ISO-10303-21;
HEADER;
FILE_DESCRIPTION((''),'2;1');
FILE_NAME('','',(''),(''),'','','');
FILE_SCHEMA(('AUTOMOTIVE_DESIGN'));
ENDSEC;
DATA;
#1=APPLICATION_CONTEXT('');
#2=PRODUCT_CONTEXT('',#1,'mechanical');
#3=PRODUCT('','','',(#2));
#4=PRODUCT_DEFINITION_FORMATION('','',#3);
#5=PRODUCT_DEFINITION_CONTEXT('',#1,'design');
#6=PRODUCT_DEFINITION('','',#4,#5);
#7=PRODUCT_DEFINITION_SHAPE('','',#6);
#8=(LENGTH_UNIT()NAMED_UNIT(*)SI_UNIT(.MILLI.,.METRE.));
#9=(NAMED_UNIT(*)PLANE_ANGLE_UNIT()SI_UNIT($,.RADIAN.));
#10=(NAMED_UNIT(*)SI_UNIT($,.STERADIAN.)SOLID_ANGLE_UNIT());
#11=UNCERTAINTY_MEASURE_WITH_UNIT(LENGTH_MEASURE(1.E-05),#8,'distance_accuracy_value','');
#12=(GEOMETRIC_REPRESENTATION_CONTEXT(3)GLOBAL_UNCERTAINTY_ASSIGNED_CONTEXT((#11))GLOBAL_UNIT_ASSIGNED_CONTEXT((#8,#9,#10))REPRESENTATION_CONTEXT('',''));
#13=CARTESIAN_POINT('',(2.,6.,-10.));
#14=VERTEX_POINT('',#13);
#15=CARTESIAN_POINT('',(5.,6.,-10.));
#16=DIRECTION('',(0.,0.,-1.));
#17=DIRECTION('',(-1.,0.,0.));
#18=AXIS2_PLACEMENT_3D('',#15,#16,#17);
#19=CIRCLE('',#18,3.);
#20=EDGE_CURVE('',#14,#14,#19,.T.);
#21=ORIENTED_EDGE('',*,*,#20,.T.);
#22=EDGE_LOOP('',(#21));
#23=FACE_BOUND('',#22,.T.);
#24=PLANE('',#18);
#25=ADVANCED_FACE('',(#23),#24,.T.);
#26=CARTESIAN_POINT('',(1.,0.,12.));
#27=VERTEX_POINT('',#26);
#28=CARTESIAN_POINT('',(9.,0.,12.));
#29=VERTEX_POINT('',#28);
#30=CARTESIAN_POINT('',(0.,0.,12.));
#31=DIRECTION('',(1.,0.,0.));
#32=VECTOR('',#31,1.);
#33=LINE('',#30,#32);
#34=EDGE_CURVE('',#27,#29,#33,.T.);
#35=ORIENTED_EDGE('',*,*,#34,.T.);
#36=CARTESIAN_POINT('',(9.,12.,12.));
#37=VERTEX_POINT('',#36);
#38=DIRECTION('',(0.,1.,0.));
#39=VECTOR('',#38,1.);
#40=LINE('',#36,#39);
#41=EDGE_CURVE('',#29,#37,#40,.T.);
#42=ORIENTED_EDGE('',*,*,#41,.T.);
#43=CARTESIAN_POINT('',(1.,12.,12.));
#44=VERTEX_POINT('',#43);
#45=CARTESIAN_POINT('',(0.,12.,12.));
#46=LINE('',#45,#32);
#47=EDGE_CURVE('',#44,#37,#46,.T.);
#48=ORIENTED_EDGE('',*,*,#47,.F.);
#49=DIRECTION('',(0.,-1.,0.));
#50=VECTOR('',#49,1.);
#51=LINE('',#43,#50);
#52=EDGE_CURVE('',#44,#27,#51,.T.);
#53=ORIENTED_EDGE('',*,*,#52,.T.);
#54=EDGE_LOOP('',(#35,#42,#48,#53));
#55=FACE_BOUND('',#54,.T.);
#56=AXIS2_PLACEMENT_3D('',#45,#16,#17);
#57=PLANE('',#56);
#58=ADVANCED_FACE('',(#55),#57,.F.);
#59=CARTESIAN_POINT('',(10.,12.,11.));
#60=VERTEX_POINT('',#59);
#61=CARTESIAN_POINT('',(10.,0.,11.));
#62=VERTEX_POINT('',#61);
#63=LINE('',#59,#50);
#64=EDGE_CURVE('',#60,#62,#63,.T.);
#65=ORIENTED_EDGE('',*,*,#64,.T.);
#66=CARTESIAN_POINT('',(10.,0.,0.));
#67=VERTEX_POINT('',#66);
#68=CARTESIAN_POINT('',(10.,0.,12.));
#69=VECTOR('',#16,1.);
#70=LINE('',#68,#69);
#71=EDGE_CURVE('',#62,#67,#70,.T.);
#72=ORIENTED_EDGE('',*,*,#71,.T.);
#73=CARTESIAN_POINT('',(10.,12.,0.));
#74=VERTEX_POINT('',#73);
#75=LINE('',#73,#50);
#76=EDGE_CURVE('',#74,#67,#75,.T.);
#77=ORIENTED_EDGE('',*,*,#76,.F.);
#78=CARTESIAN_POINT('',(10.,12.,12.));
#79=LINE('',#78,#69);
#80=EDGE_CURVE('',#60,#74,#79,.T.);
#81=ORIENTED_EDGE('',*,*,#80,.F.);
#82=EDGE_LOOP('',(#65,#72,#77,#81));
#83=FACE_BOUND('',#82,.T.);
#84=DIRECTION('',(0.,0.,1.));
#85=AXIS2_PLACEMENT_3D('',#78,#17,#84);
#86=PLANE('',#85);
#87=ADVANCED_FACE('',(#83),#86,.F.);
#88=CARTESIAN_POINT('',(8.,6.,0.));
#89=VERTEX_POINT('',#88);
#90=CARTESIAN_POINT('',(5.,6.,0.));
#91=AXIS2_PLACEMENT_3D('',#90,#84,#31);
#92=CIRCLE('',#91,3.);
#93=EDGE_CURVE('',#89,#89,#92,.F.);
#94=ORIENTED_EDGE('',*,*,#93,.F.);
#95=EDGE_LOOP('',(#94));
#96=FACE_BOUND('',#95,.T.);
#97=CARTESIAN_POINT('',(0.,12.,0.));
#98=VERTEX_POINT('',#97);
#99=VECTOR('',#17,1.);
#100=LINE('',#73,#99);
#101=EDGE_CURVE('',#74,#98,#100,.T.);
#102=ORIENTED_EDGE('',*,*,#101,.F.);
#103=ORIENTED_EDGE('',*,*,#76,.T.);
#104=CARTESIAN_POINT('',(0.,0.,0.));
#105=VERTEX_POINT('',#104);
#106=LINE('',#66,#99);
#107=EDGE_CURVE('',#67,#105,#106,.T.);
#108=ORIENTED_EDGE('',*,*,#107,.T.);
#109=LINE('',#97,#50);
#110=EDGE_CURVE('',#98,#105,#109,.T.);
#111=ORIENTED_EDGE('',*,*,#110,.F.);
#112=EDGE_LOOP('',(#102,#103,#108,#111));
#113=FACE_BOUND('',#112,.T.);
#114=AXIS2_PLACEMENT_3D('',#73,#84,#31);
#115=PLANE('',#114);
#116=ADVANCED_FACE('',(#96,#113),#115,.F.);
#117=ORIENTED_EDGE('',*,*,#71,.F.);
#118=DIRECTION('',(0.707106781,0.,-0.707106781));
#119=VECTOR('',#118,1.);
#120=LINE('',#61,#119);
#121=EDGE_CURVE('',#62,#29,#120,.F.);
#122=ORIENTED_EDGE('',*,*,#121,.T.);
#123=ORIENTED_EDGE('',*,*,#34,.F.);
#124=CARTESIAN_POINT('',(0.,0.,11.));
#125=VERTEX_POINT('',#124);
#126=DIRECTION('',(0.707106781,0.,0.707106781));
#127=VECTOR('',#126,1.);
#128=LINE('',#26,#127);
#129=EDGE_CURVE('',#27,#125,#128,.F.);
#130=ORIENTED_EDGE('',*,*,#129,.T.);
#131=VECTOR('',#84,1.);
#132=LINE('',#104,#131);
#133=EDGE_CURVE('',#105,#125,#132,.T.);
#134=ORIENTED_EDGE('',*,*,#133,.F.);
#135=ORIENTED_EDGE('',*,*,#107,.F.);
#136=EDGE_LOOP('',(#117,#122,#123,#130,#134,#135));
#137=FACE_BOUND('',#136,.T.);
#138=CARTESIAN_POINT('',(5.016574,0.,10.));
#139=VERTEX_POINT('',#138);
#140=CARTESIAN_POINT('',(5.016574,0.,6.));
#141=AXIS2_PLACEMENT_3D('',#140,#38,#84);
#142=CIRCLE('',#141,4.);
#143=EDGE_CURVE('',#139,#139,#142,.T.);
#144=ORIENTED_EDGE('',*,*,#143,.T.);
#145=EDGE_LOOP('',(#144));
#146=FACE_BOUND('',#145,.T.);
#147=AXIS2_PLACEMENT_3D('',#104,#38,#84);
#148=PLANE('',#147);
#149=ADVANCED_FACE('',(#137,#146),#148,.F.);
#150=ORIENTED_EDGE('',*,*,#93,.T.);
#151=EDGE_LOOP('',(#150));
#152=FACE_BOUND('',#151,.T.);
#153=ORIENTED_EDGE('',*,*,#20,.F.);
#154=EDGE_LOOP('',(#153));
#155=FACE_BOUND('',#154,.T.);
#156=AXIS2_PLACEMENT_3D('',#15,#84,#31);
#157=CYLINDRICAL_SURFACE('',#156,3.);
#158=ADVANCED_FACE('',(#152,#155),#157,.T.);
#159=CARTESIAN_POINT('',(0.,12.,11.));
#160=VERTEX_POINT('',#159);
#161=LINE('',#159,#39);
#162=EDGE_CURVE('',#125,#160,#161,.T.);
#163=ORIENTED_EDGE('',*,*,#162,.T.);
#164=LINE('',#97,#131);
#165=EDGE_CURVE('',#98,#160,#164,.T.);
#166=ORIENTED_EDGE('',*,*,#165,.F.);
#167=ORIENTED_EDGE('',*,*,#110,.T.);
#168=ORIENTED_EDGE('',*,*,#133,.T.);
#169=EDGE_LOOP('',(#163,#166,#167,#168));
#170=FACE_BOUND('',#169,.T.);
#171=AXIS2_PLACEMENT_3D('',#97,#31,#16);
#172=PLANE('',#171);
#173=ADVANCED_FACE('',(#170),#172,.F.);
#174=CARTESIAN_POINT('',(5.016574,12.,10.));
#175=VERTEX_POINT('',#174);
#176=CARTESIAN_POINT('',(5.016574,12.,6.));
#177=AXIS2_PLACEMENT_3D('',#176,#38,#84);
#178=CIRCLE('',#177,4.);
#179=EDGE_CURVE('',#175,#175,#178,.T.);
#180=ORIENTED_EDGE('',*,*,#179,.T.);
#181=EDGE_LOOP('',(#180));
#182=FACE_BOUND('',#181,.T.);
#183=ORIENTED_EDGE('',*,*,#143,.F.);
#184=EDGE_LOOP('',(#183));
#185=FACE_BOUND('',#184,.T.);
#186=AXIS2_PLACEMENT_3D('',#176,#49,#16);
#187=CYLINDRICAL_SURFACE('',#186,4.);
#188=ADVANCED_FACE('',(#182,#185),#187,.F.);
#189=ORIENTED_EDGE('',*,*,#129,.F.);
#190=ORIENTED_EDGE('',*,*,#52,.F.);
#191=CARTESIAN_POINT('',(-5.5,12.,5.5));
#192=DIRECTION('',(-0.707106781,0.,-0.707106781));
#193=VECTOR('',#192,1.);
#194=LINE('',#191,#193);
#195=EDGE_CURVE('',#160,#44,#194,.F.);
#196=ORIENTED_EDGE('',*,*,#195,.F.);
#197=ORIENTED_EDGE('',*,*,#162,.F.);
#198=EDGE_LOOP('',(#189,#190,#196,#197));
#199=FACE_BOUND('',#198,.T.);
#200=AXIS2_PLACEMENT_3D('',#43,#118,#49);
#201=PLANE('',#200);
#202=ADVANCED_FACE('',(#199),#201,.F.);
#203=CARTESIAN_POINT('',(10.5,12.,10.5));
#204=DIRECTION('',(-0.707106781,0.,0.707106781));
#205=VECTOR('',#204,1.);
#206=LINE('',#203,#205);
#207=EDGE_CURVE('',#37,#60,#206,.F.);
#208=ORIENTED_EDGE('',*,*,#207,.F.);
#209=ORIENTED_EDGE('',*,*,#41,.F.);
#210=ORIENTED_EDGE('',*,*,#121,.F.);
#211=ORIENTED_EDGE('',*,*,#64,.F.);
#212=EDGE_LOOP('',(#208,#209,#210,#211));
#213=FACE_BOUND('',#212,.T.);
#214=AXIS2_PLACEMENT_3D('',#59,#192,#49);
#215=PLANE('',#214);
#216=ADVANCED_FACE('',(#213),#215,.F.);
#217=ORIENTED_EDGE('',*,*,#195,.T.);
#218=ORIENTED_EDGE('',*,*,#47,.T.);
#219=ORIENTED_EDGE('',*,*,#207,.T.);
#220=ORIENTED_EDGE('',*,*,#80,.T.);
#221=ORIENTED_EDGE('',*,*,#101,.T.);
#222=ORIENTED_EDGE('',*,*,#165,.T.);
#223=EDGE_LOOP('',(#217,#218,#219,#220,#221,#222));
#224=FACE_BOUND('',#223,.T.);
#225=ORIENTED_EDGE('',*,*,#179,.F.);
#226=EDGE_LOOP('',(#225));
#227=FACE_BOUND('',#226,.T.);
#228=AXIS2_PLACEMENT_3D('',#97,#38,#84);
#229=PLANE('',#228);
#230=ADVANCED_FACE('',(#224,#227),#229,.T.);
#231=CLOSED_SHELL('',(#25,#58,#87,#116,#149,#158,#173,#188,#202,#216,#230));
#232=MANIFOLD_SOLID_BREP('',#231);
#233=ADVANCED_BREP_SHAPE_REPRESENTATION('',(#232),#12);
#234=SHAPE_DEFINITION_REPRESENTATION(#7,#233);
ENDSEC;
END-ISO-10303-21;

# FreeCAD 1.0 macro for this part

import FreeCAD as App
import Part
import Sketcher
from FreeCAD import Vector
Q = App.Units.Quantity


def edges_at(feature, points):
    """Names of the edges that pass closest to the given points."""
    edges = feature.Shape.Edges
    near = lambda p: min(range(len(edges)), key=lambda i: edges[i].distToShape(Part.Vertex(*p))[0])
    return sorted({f"Edge{near(p) + 1}" for p in points})

doc = App.newDocument("Part")
body = doc.addObject("PartDesign::Body", "Body")

# Sketch on XZ plane
sketch1 = doc.addObject("Sketcher::SketchObject", "Sketch")
body.addObject(sketch1)
sketch1.AttachmentSupport = (doc.XZ_Plane, [""])
sketch1.MapMode = "FlatFace"
sketch1.addGeometry([
    Part.LineSegment(Vector(0, 0, 0), Vector(0, 12, 0)),  # 0
    Part.LineSegment(Vector(0, 12, 0), Vector(10, 12, 0)),  # 1
    Part.LineSegment(Vector(10, 12, 0), Vector(10, 0, 0)),  # 2
    Part.LineSegment(Vector(10, 0, 0), Vector(0, 0, 0)),  # 3
    Part.Circle(Vector(5, 6, 0), Vector(0, 0, 1), 4),  # 4
], False)
sketch1.addConstraint([
    Sketcher.Constraint("Coincident", 0, 2, 1, 1),
    Sketcher.Constraint("Coincident", 1, 2, 2, 1),
    Sketcher.Constraint("Coincident", 2, 2, 3, 1),
    Sketcher.Constraint("Coincident", 3, 2, 0, 1),
    Sketcher.Constraint("Vertical", 0),
    Sketcher.Constraint("Horizontal", 1),
    Sketcher.Constraint("Vertical", 2),
    Sketcher.Constraint("Horizontal", 3),
    Sketcher.Constraint("Coincident", 3, 2, -1, 1),
    Sketcher.Constraint("Diameter", 4, Q("8 mm")),
    Sketcher.Constraint("DistanceX", 1, 1, 1, 2, Q("10 mm")),
    Sketcher.Constraint("DistanceY", 0, 1, 0, 2, Q("12 mm")),
    Sketcher.Constraint("DistanceY", -1, 1, 4, 3, Q("6 mm")),
    Sketcher.Constraint("DistanceX", -1, 1, 4, 3, Q("5.016574 mm")),
])
pad1 = doc.addObject("PartDesign::Pad", "Pad")
body.addObject(pad1)
pad1.Profile = sketch1
pad1.Length = 12
pad1.Reversed = True
doc.recompute()

chamfer = doc.addObject("PartDesign::Chamfer", "Chamfer")
body.addObject(chamfer)
chamfer.Base = (pad1, edges_at(pad1, [(10, 6, 12), (0, 6, 12)]))
chamfer.Size = 1

# Sketch on XY plane
sketch2 = doc.addObject("Sketcher::SketchObject", "Sketch001")
body.addObject(sketch2)
sketch2.AttachmentSupport = (doc.XY_Plane, [""])
sketch2.MapMode = "FlatFace"
sketch2.addGeometry(Part.Circle(Vector(5, 6, 0), Vector(0, 0, 1), 3), False)
sketch2.addConstraint([
    Sketcher.Constraint("Diameter", 0, Q("6 mm")),
    Sketcher.Constraint("DistanceX", -1, 1, 0, 3, Q("5 mm")),
    Sketcher.Constraint("DistanceY", -1, 1, 0, 3, Q("6 mm")),
])
pad2 = doc.addObject("PartDesign::Pad", "Pad001")
body.addObject(pad2)
pad2.Profile = sketch2
pad2.Length = 10
pad2.Reversed = True

doc.recompute()
